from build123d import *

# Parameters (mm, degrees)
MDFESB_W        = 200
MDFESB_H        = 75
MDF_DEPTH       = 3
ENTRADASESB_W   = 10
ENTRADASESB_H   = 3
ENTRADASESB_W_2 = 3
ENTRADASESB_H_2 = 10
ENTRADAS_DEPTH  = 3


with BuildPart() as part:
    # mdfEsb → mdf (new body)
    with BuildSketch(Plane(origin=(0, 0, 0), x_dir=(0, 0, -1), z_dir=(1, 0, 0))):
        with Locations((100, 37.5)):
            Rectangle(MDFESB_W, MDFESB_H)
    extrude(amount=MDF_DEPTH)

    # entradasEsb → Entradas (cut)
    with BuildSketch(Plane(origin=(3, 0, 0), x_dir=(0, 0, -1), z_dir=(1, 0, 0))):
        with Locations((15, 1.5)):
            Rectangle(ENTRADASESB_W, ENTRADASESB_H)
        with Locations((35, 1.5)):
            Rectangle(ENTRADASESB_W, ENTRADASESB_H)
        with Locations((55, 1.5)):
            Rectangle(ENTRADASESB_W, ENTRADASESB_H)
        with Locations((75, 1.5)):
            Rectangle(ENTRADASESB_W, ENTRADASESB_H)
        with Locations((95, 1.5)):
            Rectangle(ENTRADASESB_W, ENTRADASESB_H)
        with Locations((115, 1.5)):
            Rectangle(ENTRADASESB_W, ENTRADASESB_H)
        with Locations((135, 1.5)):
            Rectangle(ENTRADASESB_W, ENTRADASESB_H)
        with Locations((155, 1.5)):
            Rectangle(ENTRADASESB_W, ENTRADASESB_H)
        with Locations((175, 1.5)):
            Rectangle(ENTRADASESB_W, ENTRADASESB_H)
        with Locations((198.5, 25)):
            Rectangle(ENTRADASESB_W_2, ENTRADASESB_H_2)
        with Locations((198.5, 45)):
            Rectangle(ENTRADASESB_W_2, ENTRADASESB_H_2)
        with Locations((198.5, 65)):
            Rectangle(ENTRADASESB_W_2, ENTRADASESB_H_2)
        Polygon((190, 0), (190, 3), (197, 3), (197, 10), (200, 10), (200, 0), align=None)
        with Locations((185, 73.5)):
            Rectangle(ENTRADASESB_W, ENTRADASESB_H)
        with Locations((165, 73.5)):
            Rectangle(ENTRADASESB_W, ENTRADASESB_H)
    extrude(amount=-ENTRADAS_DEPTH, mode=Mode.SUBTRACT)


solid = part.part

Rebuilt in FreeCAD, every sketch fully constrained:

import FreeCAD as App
import Part
import Sketcher

V = App.Vector


def add_polygon(sketch, points):
    """Adds a closed chain of lines whose ends are joined by coincident constraints."""
    first, n = sketch.GeometryCount, len(points)
    for a, b in zip(points, points[1:] + points[:1]):
        sketch.addGeometry(Part.LineSegment(App.Vector(*a, 0), App.Vector(*b, 0)), False)
    for i in range(n):
        sketch.addConstraint(Sketcher.Constraint("Coincident", first + i, 2, first + (i + 1) % n, 1))

doc = App.newDocument("Part")
body = doc.addObject("PartDesign::Body", "Body")

sketch1 = body.newObject("Sketcher::SketchObject", "Sketch")
sketch1.AttachmentSupport = (doc.getObject("YZ_Plane"), [""])
sketch1.MapMode = "FlatFace"
add_polygon(sketch1, [(75, 0), (0, 0), (0, -200), (75, -200)])
sketch1.addConstraint([
    Sketcher.Constraint("Horizontal", 0),
    Sketcher.Constraint("Vertical", 1),
    Sketcher.Constraint("Horizontal", 2),
    Sketcher.Constraint("Vertical", 3),
    Sketcher.Constraint("Coincident", 0, 2, -1, 1),
    Sketcher.Constraint("DistanceX", 0, 2, 0, 1, 75.0),
    Sketcher.Constraint("DistanceY", 1, 2, 1, 1, 200.0),
])
pad1 = body.newObject("PartDesign::Pad", "Pad")
pad1.Profile = sketch1
pad1.Length = 3

sketch2 = body.newObject("Sketcher::SketchObject", "Sketch001")
sketch2.AttachmentSupport = (doc.getObject("YZ_Plane"), [""])
sketch2.MapMode = "FlatFace"
sketch2.AttachmentOffset = App.Placement(V(0, 0, 3), App.Rotation())
add_polygon(sketch2, [(3, -10), (0, -10), (0, -20), (3, -20)])
add_polygon(sketch2, [(3, -30), (0, -30), (0, -40), (3, -40)])
add_polygon(sketch2, [(3, -50), (0, -50), (0, -60), (3, -60)])
add_polygon(sketch2, [(3, -70), (0, -70), (0, -80), (3, -80)])
add_polygon(sketch2, [(3, -90), (0, -90), (0, -100), (3, -100)])
add_polygon(sketch2, [(3, -110), (0, -110), (0, -120), (3, -120)])
add_polygon(sketch2, [(3, -130), (0, -130), (0, -140), (3, -140)])
add_polygon(sketch2, [(3, -150), (0, -150), (0, -160), (3, -160)])
add_polygon(sketch2, [(3, -170), (0, -170), (0, -180), (3, -180)])
add_polygon(sketch2, [(30, -197), (20, -197), (20, -200), (30, -200)])
add_polygon(sketch2, [(50, -197), (40, -197), (40, -200), (50, -200)])
add_polygon(sketch2, [(70, -197), (60, -197), (60, -200), (70, -200)])
add_polygon(sketch2, [(3, -190), (0, -190), (0, -200), (10, -200), (10, -197), (3, -197)])
add_polygon(sketch2, [(75, -180), (72, -180), (72, -190), (75, -190)])
add_polygon(sketch2, [(75, -160), (72, -160), (72, -170), (75, -170)])
sketch2.addConstraint([
    Sketcher.Constraint("Horizontal", 0),
    Sketcher.Constraint("Vertical", 1),
    Sketcher.Constraint("Horizontal", 2),
    Sketcher.Constraint("Vertical", 3),
    Sketcher.Constraint("Horizontal", 4),
    Sketcher.Constraint("Vertical", 5),
    Sketcher.Constraint("Horizontal", 6),
    Sketcher.Constraint("Vertical", 7),
    Sketcher.Constraint("Horizontal", 8),
    Sketcher.Constraint("Vertical", 9),
    Sketcher.Constraint("Horizontal", 10),
    Sketcher.Constraint("Vertical", 11),
    Sketcher.Constraint("Horizontal", 12),
    Sketcher.Constraint("Vertical", 13),
    Sketcher.Constraint("Horizontal", 14),
    Sketcher.Constraint("Vertical", 15),
    Sketcher.Constraint("Horizontal", 16),
    Sketcher.Constraint("Vertical", 17),
    Sketcher.Constraint("Horizontal", 18),
    Sketcher.Constraint("Vertical", 19),
    Sketcher.Constraint("Horizontal", 20),
    Sketcher.Constraint("Vertical", 21),
    Sketcher.Constraint("Horizontal", 22),
    Sketcher.Constraint("Vertical", 23),
    Sketcher.Constraint("Horizontal", 24),
    Sketcher.Constraint("Vertical", 25),
    Sketcher.Constraint("Horizontal", 26),
    Sketcher.Constraint("Vertical", 27),
    Sketcher.Constraint("Horizontal", 28),
    Sketcher.Constraint("Vertical", 29),
    Sketcher.Constraint("Horizontal", 30),
    Sketcher.Constraint("Vertical", 31),
    Sketcher.Constraint("Horizontal", 32),
    Sketcher.Constraint("Vertical", 33),
    Sketcher.Constraint("Horizontal", 34),
    Sketcher.Constraint("Vertical", 35),
    Sketcher.Constraint("Horizontal", 36),
    Sketcher.Constraint("Vertical", 37),
    Sketcher.Constraint("Horizontal", 38),
    Sketcher.Constraint("Vertical", 39),
    Sketcher.Constraint("Horizontal", 40),
    Sketcher.Constraint("Vertical", 41),
    Sketcher.Constraint("Horizontal", 42),
    Sketcher.Constraint("Vertical", 43),
    Sketcher.Constraint("Horizontal", 44),
    Sketcher.Constraint("Vertical", 45),
    Sketcher.Constraint("Horizontal", 46),
    Sketcher.Constraint("Vertical", 47),
    Sketcher.Constraint("Horizontal", 48),
    Sketcher.Constraint("Vertical", 49),
    Sketcher.Constraint("Horizontal", 50),
    Sketcher.Constraint("Vertical", 51),
    Sketcher.Constraint("Horizontal", 52),
    Sketcher.Constraint("Vertical", 53),
    Sketcher.Constraint("Horizontal", 54),
    Sketcher.Constraint("Vertical", 55),
    Sketcher.Constraint("Horizontal", 56),
    Sketcher.Constraint("Vertical", 57),
    Sketcher.Constraint("Horizontal", 58),
    Sketcher.Constraint("Vertical", 59),
    Sketcher.Constraint("Horizontal", 60),
    Sketcher.Constraint("Vertical", 61),
    Sketcher.Constraint("PointOnObject", 0, 2, -2),
    Sketcher.Constraint("PointOnObject", 4, 2, -2),
    Sketcher.Constraint("PointOnObject", 8, 2, -2),
    Sketcher.Constraint("PointOnObject", 12, 2, -2),
    Sketcher.Constraint("PointOnObject", 16, 2, -2),
    Sketcher.Constraint("PointOnObject", 20, 2, -2),
    Sketcher.Constraint("PointOnObject", 24, 2, -2),
    Sketcher.Constraint("PointOnObject", 28, 2, -2),
    Sketcher.Constraint("PointOnObject", 32, 2, -2),
    Sketcher.Constraint("PointOnObject", 48, 2, -2),
    Sketcher.Constraint("Horizontal", 39, 2, 40, 2),
    Sketcher.Constraint("Horizontal", 38, 2, 41, 2),
    Sketcher.Constraint("Horizontal", 43, 2, 44, 2),
    Sketcher.Constraint("Horizontal", 42, 2, 45, 2),
    Sketcher.Constraint("Horizontal", 46, 2, 49, 2),
    Sketcher.Constraint("Horizontal", 47, 2, 51, 2),
    Sketcher.Constraint("Horizontal", 34, 2, 54, 2),
    Sketcher.Constraint("Horizontal", 53, 2, 55, 2),
    Sketcher.Constraint("Horizontal", 30, 2, 58, 2),
    Sketcher.Constraint("Horizontal", 35, 2, 59, 2),
    Sketcher.Constraint("Vertical", 3, 2, 6, 2),
    Sketcher.Constraint("Vertical", 7, 2, 10, 2),
    Sketcher.Constraint("Vertical", 11, 2, 14, 2),
    Sketcher.Constraint("Vertical", 15, 2, 18, 2),
    Sketcher.Constraint("Vertical", 19, 2, 22, 2),
    Sketcher.Constraint("Vertical", 23, 2, 26, 2),
    Sketcher.Constraint("Vertical", 27, 2, 30, 2),
    Sketcher.Constraint("Vertical", 31, 2, 34, 2),
    Sketcher.Constraint("Vertical", 35, 2, 52, 2),
    Sketcher.Constraint("Vertical", 55, 2, 58, 2),
    Sketcher.Constraint("Vertical", 57, 2, 60, 2),
    Sketcher.Constraint("Equal", 38, 40),
    Sketcher.Constraint("Equal", 42, 44),
    Sketcher.Constraint("Equal", 46, 50),
    Sketcher.Constraint("Equal", 48, 54),
    Sketcher.Constraint("Equal", 50, 1),
    Sketcher.Constraint("Equal", 3, 5),
    Sketcher.Constraint("Equal", 7, 9),
    Sketcher.Constraint("Equal", 11, 13),
    Sketcher.Constraint("Equal", 15, 17),
    Sketcher.Constraint("Equal", 19, 21),
    Sketcher.Constraint("Equal", 23, 25),
    Sketcher.Constraint("Equal", 27, 29),
    Sketcher.Constraint("Equal", 31, 33),
    Sketcher.Constraint("Equal", 60, 37),
    Sketcher.Constraint("Equal", 35, 49),
    Sketcher.Constraint("Equal", 49, 55),
    Sketcher.Constraint("Equal", 57, 59),
    Sketcher.Constraint("DistanceX", 0, 2, 0, 1, 3.0),
    Sketcher.Constraint("DistanceX", 36, 2, 36, 1, 10.0),
    Sketcher.Constraint("DistanceY", 0, 2, -1, 1, 10.0),
    Sketcher.Constraint("DistanceY", 4, 2, -1, 1, 30.0),
    Sketcher.Constraint("DistanceY", 8, 2, -1, 1, 50.0),
    Sketcher.Constraint("DistanceY", 12, 2, -1, 1, 70.0),
    Sketcher.Constraint("DistanceY", 16, 2, -1, 1, 90.0),
    Sketcher.Constraint("DistanceY", 20, 2, -1, 1, 110.0),
    Sketcher.Constraint("DistanceY", 24, 2, -1, 1, 130.0),
    Sketcher.Constraint("DistanceY", 28, 2, -1, 1, 150.0),
    Sketcher.Constraint("DistanceX", -1, 1, 36, 2, 20.0),
    Sketcher.Constraint("DistanceX", -1, 1, 40, 2, 40.0),
    Sketcher.Constraint("DistanceX", -1, 1, 44, 2, 60.0),
    Sketcher.Constraint("DistanceX", -1, 1, 54, 2, 72.0),
])
pocket1 = body.newObject("PartDesign::Pocket", "Pocket")
pocket1.Profile = sketch2
pocket1.Length = 3

doc.recompute()
